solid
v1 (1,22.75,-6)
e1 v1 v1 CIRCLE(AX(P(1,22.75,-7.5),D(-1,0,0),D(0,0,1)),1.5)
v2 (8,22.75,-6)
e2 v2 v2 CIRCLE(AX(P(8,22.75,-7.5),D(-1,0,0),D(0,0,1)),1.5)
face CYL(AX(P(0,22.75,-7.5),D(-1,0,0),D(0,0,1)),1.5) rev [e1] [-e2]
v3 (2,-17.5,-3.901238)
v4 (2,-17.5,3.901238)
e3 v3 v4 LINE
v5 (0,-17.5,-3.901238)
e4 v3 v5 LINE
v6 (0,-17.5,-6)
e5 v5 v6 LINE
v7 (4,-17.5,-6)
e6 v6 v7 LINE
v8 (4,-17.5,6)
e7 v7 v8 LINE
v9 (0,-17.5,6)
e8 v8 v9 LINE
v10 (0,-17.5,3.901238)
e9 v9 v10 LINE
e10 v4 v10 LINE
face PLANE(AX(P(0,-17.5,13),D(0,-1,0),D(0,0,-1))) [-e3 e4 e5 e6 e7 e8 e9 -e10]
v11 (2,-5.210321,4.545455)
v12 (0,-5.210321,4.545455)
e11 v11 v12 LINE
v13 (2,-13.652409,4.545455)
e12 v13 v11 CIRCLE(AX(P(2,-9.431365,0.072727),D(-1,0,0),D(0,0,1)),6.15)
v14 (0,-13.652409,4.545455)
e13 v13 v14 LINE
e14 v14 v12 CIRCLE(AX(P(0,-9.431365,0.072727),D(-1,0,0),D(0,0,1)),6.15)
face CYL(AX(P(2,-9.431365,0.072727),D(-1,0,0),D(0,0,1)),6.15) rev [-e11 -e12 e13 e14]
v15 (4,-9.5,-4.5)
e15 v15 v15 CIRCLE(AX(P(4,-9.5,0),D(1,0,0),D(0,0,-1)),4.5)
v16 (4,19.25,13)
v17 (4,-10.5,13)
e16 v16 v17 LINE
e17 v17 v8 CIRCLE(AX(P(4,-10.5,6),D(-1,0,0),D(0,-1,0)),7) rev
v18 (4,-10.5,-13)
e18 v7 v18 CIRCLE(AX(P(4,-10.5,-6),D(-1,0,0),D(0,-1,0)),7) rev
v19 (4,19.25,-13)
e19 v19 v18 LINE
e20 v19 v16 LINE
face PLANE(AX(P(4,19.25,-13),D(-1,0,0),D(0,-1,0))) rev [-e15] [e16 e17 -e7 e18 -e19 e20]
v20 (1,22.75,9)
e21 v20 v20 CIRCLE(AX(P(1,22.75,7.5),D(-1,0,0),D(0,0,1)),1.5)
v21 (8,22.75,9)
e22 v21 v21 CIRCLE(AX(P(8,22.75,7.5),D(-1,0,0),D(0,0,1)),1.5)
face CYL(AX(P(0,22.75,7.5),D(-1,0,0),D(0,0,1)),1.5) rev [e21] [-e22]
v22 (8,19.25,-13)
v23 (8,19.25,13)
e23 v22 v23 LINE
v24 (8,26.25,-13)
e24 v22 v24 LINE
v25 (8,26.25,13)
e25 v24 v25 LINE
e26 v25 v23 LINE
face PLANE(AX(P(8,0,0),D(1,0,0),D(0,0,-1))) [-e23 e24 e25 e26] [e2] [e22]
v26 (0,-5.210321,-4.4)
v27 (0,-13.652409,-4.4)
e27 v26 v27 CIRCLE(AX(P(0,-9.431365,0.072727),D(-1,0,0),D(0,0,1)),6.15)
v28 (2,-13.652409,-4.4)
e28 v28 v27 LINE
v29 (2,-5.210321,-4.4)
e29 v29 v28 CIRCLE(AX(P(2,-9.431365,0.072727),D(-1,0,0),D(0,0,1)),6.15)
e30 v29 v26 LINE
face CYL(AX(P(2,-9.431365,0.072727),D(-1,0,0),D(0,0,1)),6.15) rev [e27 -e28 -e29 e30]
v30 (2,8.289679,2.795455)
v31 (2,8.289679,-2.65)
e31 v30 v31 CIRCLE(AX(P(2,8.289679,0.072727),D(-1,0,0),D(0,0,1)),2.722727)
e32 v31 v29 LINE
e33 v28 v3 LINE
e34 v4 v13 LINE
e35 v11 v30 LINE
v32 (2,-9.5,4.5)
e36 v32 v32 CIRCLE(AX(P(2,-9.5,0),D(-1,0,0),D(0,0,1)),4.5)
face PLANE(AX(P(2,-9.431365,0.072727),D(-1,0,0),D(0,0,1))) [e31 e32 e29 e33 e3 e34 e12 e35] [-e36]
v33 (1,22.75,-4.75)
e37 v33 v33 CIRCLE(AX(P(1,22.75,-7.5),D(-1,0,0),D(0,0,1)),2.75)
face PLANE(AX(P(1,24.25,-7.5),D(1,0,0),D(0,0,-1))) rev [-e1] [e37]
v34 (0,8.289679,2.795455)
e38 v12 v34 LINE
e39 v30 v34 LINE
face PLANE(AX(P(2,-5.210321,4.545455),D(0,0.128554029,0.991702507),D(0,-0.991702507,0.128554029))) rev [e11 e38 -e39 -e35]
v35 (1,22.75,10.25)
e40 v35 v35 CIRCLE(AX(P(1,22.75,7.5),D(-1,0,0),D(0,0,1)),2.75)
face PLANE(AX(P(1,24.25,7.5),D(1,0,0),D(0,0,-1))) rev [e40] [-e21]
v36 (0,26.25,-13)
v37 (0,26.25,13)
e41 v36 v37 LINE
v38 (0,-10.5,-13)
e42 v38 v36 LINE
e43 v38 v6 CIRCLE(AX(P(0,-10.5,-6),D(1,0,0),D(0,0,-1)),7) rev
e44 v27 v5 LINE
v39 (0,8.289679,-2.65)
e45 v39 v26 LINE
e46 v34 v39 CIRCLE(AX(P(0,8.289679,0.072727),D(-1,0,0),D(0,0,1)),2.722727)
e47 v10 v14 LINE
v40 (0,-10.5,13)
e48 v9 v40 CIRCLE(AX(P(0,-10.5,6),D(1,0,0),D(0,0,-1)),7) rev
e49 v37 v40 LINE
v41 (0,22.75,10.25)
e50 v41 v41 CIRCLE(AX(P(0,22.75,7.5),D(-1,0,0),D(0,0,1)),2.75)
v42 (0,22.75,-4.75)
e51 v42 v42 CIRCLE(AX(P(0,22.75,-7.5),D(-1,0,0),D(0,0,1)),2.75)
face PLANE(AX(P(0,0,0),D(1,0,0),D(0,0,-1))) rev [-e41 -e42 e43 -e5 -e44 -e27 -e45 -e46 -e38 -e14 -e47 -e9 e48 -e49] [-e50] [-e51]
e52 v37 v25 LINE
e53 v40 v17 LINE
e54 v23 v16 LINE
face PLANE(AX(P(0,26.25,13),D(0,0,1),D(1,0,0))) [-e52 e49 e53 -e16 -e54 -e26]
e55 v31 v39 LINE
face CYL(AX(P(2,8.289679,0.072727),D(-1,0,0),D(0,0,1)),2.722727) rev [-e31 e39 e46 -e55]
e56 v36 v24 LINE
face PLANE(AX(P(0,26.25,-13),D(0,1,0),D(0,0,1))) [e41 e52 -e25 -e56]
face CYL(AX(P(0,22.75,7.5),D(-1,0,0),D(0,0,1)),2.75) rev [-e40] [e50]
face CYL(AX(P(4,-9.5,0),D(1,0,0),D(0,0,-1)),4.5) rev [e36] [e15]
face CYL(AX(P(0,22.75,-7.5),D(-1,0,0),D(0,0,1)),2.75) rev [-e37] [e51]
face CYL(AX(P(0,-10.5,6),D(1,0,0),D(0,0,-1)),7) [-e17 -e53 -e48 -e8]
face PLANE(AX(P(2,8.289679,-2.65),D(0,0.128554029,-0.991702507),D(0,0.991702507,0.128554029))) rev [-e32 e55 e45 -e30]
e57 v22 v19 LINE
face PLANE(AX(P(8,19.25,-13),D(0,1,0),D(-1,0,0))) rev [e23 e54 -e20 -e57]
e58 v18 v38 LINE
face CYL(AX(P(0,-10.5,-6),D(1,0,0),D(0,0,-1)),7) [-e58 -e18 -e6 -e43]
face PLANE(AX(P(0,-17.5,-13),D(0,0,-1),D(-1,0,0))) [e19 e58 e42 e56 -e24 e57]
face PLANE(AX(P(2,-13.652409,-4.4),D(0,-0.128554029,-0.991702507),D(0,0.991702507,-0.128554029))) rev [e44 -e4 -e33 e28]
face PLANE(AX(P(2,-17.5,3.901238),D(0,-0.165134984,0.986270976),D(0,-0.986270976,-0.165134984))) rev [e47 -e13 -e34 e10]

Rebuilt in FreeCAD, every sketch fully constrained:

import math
import FreeCAD as App
import Part
import Sketcher

V = App.Vector


def edges_at(feature, points):
    """Names of the edges that pass closest to the given points."""
    edges = feature.Shape.Edges
    near = lambda p: min(range(len(edges)), key=lambda i: edges[i].distToShape(Part.Vertex(*p))[0])
    return sorted({f"Edge{near(p) + 1}" for p in points})


def add_polygon(sketch, points):
    """Adds a closed chain of lines whose ends are joined by coincident constraints."""
    first, n = sketch.GeometryCount, len(points)
    for a, b in zip(points, points[1:] + points[:1]):
        sketch.addGeometry(Part.LineSegment(App.Vector(*a, 0), App.Vector(*b, 0)), False)
    for i in range(n):
        sketch.addConstraint(Sketcher.Constraint("Coincident", first + i, 2, first + (i + 1) % n, 1))

doc = App.newDocument("Part")
body = doc.addObject("PartDesign::Body", "Body")

# Sketch on YZ plane
sketch1 = body.newObject("Sketcher::SketchObject", "Sketch")
sketch1.AttachmentSupport = (doc.getObject("YZ_Plane"), [""])
sketch1.MapMode = "FlatFace"
sketch1.AttachmentOffset = App.Placement(V(0, 0, 8), App.Rotation())
add_polygon(sketch1, [(26, 13), (-18, 13), (-18, -13), (26, -13)])  # lines 0-3
sketch1.addConstraint(Sketcher.Constraint("Horizontal", 0))
sketch1.addConstraint(Sketcher.Constraint("Vertical", 1))
sketch1.addConstraint(Sketcher.Constraint("Horizontal", 2))
sketch1.addConstraint(Sketcher.Constraint("Vertical", 3))
sketch1.addConstraint(Sketcher.Constraint("DistanceY", 1, 2, 1, 1, 26.0))
sketch1.addConstraint(Sketcher.Constraint("DistanceY", -1, 1, 0, 2, 13.0))
sketch1.addConstraint(Sketcher.Constraint("DistanceX", 0, 2, 0, 1, 43.75))
sketch1.addConstraint(Sketcher.Constraint("DistanceX", 0, 2, -1, 1, 17.5))
pad1 = body.newObject("PartDesign::Pad", "Pad")
pad1.Profile = sketch1
pad1.Length = 8
pad1.Reversed = True

# Sketch on YZ plane
sketch2 = body.newObject("Sketcher::SketchObject", "Sketch001")
sketch2.AttachmentSupport = (doc.getObject("YZ_Plane"), [""])
sketch2.MapMode = "FlatFace"
sketch2.addGeometry(Part.LineSegment(V(-17.5, 3.9, 0), V(-13.7, 4.5, 0)), False)
sketch2.addGeometry(Part.ArcOfCircle(Part.Circle(V(-9.4, 0.1, 0), V(0, 0, 1), 6.1), math.radians(47), math.radians(133)), False)
sketch2.addGeometry(Part.LineSegment(V(-5.2, 4.5, 0), V(8.3, 2.8, 0)), False)
sketch2.addGeometry(Part.ArcOfCircle(Part.Circle(V(8.3, 0.1, 0), V(0, 0, 1), 2.7), math.radians(-90), math.radians(90)), False)
sketch2.addGeometry(Part.LineSegment(V(8.3, -2.6, 0), V(-5.2, -4.4, 0)), False)
sketch2.addGeometry(Part.ArcOfCircle(Part.Circle(V(-9.4, 0.1, 0), V(0, 0, 1), 6.2), math.radians(-133), math.radians(-47)), False)
sketch2.addGeometry(Part.LineSegment(V(-13.7, -4.4, 0), V(-17.5, -3.9, 0)), False)
sketch2.addGeometry(Part.LineSegment(V(-17.5, -3.9, 0), V(-17.5, 3.9, 0)), False)
sketch2.addConstraint(Sketcher.Constraint("Coincident", 0, 2, 1, 2))
sketch2.addConstraint(Sketcher.Constraint("Coincident", 1, 1, 2, 1))
sketch2.addConstraint(Sketcher.Constraint("Coincident", 2, 2, 3, 2))
sketch2.addConstraint(Sketcher.Constraint("Coincident", 3, 1, 4, 1))
sketch2.addConstraint(Sketcher.Constraint("Coincident", 4, 2, 5, 2))
sketch2.addConstraint(Sketcher.Constraint("Coincident", 5, 1, 6, 1))
sketch2.addConstraint(Sketcher.Constraint("Coincident", 6, 2, 7, 1))
sketch2.addConstraint(Sketcher.Constraint("Coincident", 7, 2, 0, 1))
sketch2.addConstraint(Sketcher.Constraint("Vertical", 7))
sketch2.addConstraint(Sketcher.Constraint("Coincident", 5, 3, 1, 3))
sketch2.addConstraint(Sketcher.Constraint("Equal", 1, 5))
sketch2.addConstraint(Sketcher.Constraint("Parallel", 2, 6))
sketch2.addConstraint(Sketcher.Constraint("Horizontal", 1, 3, 3, 3))
sketch2.addConstraint(Sketcher.Constraint("Horizontal", 0, 2, 1, 1))
sketch2.addConstraint(Sketcher.Constraint("Horizontal", 4, 2, 5, 1))
sketch2.addConstraint(Sketcher.Constraint("Vertical", 3, 3, 2, 2))
sketch2.addConstraint(Sketcher.Constraint("Vertical", 2, 2, 3, 1))
sketch2.addConstraint(Sketcher.Constraint("Vertical", 1, 1, 4, 2))
sketch2.addConstraint(Sketcher.Constraint("Radius", 1, 6.15))
sketch2.addConstraint(Sketcher.Constraint("DistanceY", 4, 2, -1, 1, 4.4))
sketch2.addConstraint(Sketcher.Constraint("DistanceX", 6, 2, -1, 1, 17.5))
sketch2.addConstraint(Sketcher.Constraint("DistanceX", 1, 1, 3, 3, 13.5))
sketch2.addConstraint(Sketcher.Constraint("DistanceY", 3, 1, -1, 1, 2.65))
sketch2.addConstraint(Sketcher.Constraint("Radius", 3, 2.722727))
sketch2.addConstraint(Sketcher.Constraint("Distance", 0, 3.90115))
sketch2.addConstraint(Sketcher.Constraint("DistanceY", 7, 1, 7, 2, 7.802476))
pocket1 = body.newObject("PartDesign::Pocket", "Pocket")
pocket1.Profile = sketch2
pocket1.Length = 2
pocket1.Reversed = True

# Sketch on XY plane
sketch3 = body.newObject("Sketcher::SketchObject", "Sketch002")
sketch3.AttachmentSupport = (doc.getObject("XY_Plane"), [""])
sketch3.MapMode = "FlatFace"
sketch3.AttachmentOffset = App.Placement(V(0, 0, 13), App.Rotation())
add_polygon(sketch3, [(4, 19.2), (4, -17.5), (8, -17.5), (8, 19.2)])  # lines 0-3
sketch3.addConstraint(Sketcher.Constraint("Vertical", 0))
sketch3.addConstraint(Sketcher.Constraint("Horizontal", 1))
sketch3.addConstraint(Sketcher.Constraint("Vertical", 2))
sketch3.addConstraint(Sketcher.Constraint("Horizontal", 3))
sketch3.addConstraint(Sketcher.Constraint("DistanceX", 1, 1, 1, 2, 4.0))
sketch3.addConstraint(Sketcher.Constraint("DistanceX", -1, 1, 0, 2, 4.0))
sketch3.addConstraint(Sketcher.Constraint("DistanceY", 0, 2, 0, 1, 36.75))
sketch3.addConstraint(Sketcher.Constraint("DistanceY", 0, 2, -1, 1, 17.5))
pocket2 = body.newObject("PartDesign::Pocket", "Pocket001")
pocket2.Profile = sketch3
pocket2.Type = "ThroughAll"

# Sketch on YZ plane
sketch4 = body.newObject("Sketcher::SketchObject", "Sketch003")
sketch4.AttachmentSupport = (doc.getObject("YZ_Plane"), [""])
sketch4.MapMode = "FlatFace"
sketch4.addGeometry(Part.Circle(V(22.8, -7.5, 0), V(0, 0, 1), 1.5), False)
sketch4.addGeometry(Part.Circle(V(22.8, 7.5, 0), V(0, 0, 1), 1.5), False)
sketch4.addConstraint(Sketcher.Constraint("Equal", 0, 1))
sketch4.addConstraint(Sketcher.Constraint("Symmetric", 0, 3, 1, 3, -1))
sketch4.addConstraint(Sketcher.Constraint("Diameter", 0, 3.0))
sketch4.addConstraint(Sketcher.Constraint("DistanceY", 0, 3, 1, 3, 15.0))
sketch4.addConstraint(Sketcher.Constraint("DistanceX", -1, 1, 0, 3, 22.75))
doc.recompute()
hole = body.newObject("PartDesign::Hole", "Hole")
hole.Profile = sketch4
hole.ThreadType = "None"
hole.Diameter = 3
hole.DepthType = "ThroughAll"
hole.HoleCutType = "Counterbore"
hole.HoleCutDiameter = 5.5
hole.HoleCutDepth = 1
hole.Reversed = True

# Sketch on YZ plane
sketch5 = body.newObject("Sketcher::SketchObject", "Sketch004")
sketch5.AttachmentSupport = (doc.getObject("YZ_Plane"), [""])
sketch5.MapMode = "FlatFace"
sketch5.AttachmentOffset = App.Placement(V(0, 0, 4), App.Rotation())
sketch5.addGeometry(Part.Circle(V(-9.5, 0, 0), V(0, 0, 1), 4.5), False)
sketch5.addConstraint(Sketcher.Constraint("PointOnObject", 0, 3, -1))
sketch5.addConstraint(Sketcher.Constraint("Diameter", 0, 9.0))
sketch5.addConstraint(Sketcher.Constraint("DistanceX", 0, 3, -1, 1, 9.5))
doc.recompute()
hole2 = body.newObject("PartDesign::Hole", "Hole001")
hole2.Profile = sketch5
hole2.ThreadType = "None"
hole2.Diameter = 9
hole2.DepthType = "Dimension"
hole2.Depth = 4
hole2.DrillPoint = "Flat"
doc.recompute()

fillet = body.newObject("PartDesign::Fillet", "Fillet")
fillet.Base = (hole2, edges_at(hole2, [(2, -17.5, -13), (2, -17.5, 13)]))
fillet.Radius = 7

doc.recompute()
